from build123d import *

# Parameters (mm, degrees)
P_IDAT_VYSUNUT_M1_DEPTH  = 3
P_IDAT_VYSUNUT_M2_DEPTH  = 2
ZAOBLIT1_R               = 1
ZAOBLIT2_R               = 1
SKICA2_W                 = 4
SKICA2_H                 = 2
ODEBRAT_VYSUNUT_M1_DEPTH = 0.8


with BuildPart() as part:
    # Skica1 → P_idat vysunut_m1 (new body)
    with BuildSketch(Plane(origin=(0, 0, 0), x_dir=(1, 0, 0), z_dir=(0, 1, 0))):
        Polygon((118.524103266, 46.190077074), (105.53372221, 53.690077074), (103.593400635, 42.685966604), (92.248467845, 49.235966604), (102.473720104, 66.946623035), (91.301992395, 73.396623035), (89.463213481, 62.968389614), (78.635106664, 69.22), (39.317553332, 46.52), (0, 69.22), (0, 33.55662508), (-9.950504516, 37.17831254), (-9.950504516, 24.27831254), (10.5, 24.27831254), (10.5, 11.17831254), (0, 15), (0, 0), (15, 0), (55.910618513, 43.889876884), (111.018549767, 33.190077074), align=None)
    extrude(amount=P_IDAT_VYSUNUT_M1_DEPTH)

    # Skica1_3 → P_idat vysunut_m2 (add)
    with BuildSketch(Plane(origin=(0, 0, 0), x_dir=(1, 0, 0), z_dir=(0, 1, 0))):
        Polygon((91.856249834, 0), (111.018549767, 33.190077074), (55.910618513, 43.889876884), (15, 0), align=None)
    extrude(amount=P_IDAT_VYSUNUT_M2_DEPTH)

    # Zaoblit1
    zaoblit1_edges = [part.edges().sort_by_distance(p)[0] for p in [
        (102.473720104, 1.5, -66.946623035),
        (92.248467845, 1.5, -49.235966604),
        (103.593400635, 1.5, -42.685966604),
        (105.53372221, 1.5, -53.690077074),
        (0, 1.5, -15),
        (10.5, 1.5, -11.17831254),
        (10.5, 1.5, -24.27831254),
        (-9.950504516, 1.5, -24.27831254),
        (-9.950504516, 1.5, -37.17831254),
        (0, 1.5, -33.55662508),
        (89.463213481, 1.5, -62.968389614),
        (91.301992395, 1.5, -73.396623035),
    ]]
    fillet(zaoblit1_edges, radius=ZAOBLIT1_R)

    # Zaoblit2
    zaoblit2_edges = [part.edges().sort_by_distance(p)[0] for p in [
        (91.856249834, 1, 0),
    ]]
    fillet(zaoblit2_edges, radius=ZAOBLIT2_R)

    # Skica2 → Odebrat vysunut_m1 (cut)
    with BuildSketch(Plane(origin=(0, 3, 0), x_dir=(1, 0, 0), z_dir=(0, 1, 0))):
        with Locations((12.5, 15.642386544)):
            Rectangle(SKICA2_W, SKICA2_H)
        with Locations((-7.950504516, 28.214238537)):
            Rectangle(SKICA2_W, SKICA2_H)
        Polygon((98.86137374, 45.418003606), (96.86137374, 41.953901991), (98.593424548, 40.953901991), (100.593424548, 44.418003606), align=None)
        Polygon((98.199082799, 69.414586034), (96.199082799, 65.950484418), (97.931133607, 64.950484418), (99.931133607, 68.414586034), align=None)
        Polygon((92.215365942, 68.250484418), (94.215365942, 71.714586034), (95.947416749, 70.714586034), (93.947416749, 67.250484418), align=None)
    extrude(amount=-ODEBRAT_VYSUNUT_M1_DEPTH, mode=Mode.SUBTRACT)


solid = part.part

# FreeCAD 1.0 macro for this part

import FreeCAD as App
import Part
import Sketcher

V = App.Vector
Q = App.Units.Quantity


def edges_at(feature, points):
    """Names of the edges that pass closest to the given points."""
    edges = feature.Shape.Edges
    near = lambda p: min(range(len(edges)), key=lambda i: edges[i].distToShape(Part.Vertex(*p))[0])
    return sorted({f"Edge{near(p) + 1}" for p in points})

doc = App.newDocument("Part")
body = doc.addObject("PartDesign::Body", "Body")

# Sketch on XZ plane
sketch1 = doc.addObject("Sketcher::SketchObject", "Sketch")
body.addObject(sketch1)
sketch1.AttachmentSupport = (doc.XZ_Plane, [""])
sketch1.MapMode = "FlatFace"
sketch1.addGeometry(Part.LineSegment(V(119, -46, 0), V(106, -54, 0)), False)
sketch1.addGeometry(Part.LineSegment(V(106, -54, 0), V(104, -43, 0)), False)
sketch1.addGeometry(Part.LineSegment(V(104, -43, 0), V(92, -49, 0)), False)
sketch1.addGeometry(Part.LineSegment(V(92, -49, 0), V(102, -67, 0)), False)
sketch1.addGeometry(Part.LineSegment(V(102, -67, 0), V(91, -73, 0)), False)
sketch1.addGeometry(Part.LineSegment(V(91, -73, 0), V(89, -63, 0)), False)
sketch1.addGeometry(Part.LineSegment(V(89, -63, 0), V(79, -69, 0)), False)
sketch1.addGeometry(Part.LineSegment(V(79, -69, 0), V(39, -47, 0)), False)
sketch1.addGeometry(Part.LineSegment(V(39, -47, 0), V(0, -69, 0)), False)
sketch1.addGeometry(Part.LineSegment(V(0, -69, 0), V(0, -34, 0)), False)
sketch1.addGeometry(Part.LineSegment(V(0, -34, 0), V(-10, -37, 0)), False)
sketch1.addGeometry(Part.LineSegment(V(-10, -37, 0), V(-10, -24, 0)), False)
sketch1.addGeometry(Part.LineSegment(V(-10, -24, 0), V(10, -24, 0)), False)
sketch1.addGeometry(Part.LineSegment(V(10, -24, 0), V(10, -11, 0)), False)
sketch1.addGeometry(Part.LineSegment(V(10, -11, 0), V(0, -15, 0)), False)
sketch1.addGeometry(Part.LineSegment(V(0, -15, 0), V(0, 0, 0)), False)
sketch1.addGeometry(Part.LineSegment(V(0, 0, 0), V(15, 0, 0)), False)
sketch1.addGeometry(Part.LineSegment(V(15, 0, 0), V(56, -44, 0)), False)
sketch1.addGeometry(Part.LineSegment(V(56, -44, 0), V(111, -33, 0)), False)
sketch1.addGeometry(Part.LineSegment(V(111, -33, 0), V(119, -46, 0)), False)
sketch1.addConstraint(Sketcher.Constraint("Coincident", 0, 2, 1, 1))
sketch1.addConstraint(Sketcher.Constraint("Coincident", 1, 2, 2, 1))
sketch1.addConstraint(Sketcher.Constraint("Coincident", 2, 2, 3, 1))
sketch1.addConstraint(Sketcher.Constraint("Coincident", 3, 2, 4, 1))
sketch1.addConstraint(Sketcher.Constraint("Coincident", 4, 2, 5, 1))
sketch1.addConstraint(Sketcher.Constraint("Coincident", 5, 2, 6, 1))
sketch1.addConstraint(Sketcher.Constraint("Coincident", 6, 2, 7, 1))
sketch1.addConstraint(Sketcher.Constraint("Coincident", 7, 2, 8, 1))
sketch1.addConstraint(Sketcher.Constraint("Coincident", 8, 2, 9, 1))
sketch1.addConstraint(Sketcher.Constraint("Coincident", 9, 2, 10, 1))
sketch1.addConstraint(Sketcher.Constraint("Coincident", 10, 2, 11, 1))
sketch1.addConstraint(Sketcher.Constraint("Coincident", 11, 2, 12, 1))
sketch1.addConstraint(Sketcher.Constraint("Coincident", 12, 2, 13, 1))
sketch1.addConstraint(Sketcher.Constraint("Coincident", 13, 2, 14, 1))
sketch1.addConstraint(Sketcher.Constraint("Coincident", 14, 2, 15, 1))
sketch1.addConstraint(Sketcher.Constraint("Coincident", 15, 2, 16, 1))
sketch1.addConstraint(Sketcher.Constraint("Coincident", 16, 2, 17, 1))
sketch1.addConstraint(Sketcher.Constraint("Coincident", 17, 2, 18, 1))
sketch1.addConstraint(Sketcher.Constraint("Coincident", 18, 2, 19, 1))
sketch1.addConstraint(Sketcher.Constraint("Coincident", 19, 2, 0, 1))
sketch1.addConstraint(Sketcher.Constraint("Vertical", 9))
sketch1.addConstraint(Sketcher.Constraint("Vertical", 11))
sketch1.addConstraint(Sketcher.Constraint("Horizontal", 12))
sketch1.addConstraint(Sketcher.Constraint("Vertical", 13))
sketch1.addConstraint(Sketcher.Constraint("Vertical", 15))
sketch1.addConstraint(Sketcher.Constraint("Horizontal", 16))
sketch1.addConstraint(Sketcher.Constraint("Coincident", 15, 2, -1, 1))
sketch1.addConstraint(Sketcher.Constraint("PointOnObject", 8, 2, -2))
sketch1.addConstraint(Sketcher.Constraint("Parallel", 0, 2))
sketch1.addConstraint(Sketcher.Constraint("Perpendicular", 2, 3))
sketch1.addConstraint(Sketcher.Constraint("Perpendicular", 3, 4))
sketch1.addConstraint(Sketcher.Constraint("Parallel", 1, 5))
sketch1.addConstraint(Sketcher.Constraint("Parallel", 4, 6))
sketch1.addConstraint(Sketcher.Constraint("Parallel", 6, 8))
sketch1.addConstraint(Sketcher.Constraint("Parallel", 10, 14))
sketch1.addConstraint(Sketcher.Constraint("Perpendicular", 8, 19))
sketch1.addConstraint(Sketcher.Constraint("Horizontal", 6, 2, 8, 2))
sketch1.addConstraint(Sketcher.Constraint("Equal", 16, 15))
sketch1.addConstraint(Sketcher.Constraint("Equal", 7, 8))
sketch1.addConstraint(Sketcher.Constraint("Equal", 5, 10))
sketch1.addConstraint(Sketcher.Constraint("Equal", 1, 14))
sketch1.addConstraint(Sketcher.Constraint("DistanceX", 16, 1, 16, 2, Q("15 mm")))
sketch1.addConstraint(Sketcher.Constraint("Angle", 0, Q("-150 deg")))
sketch1.addConstraint(Sketcher.Constraint("Angle", 1, Q("100 deg")))
sketch1.addConstraint(Sketcher.Constraint("Angle", 10, Q("-160 deg")))
sketch1.addConstraint(Sketcher.Constraint("Distance", 0, Q("15 mm")))
sketch1.addConstraint(Sketcher.Constraint("Distance", 17, Q("60 mm")))
sketch1.addConstraint(Sketcher.Constraint("DistanceY", 11, 1, 11, 2, Q("12.9 mm")))
sketch1.addConstraint(Sketcher.Constraint("DistanceY", 13, 1, 13, 2, Q("13.1 mm")))
sketch1.addConstraint(Sketcher.Constraint("DistanceY", 19, 2, 18, 2, Q("13 mm")))
sketch1.addConstraint(Sketcher.Constraint("Distance", 2, Q("13.1 mm")))
sketch1.addConstraint(Sketcher.Constraint("Distance", 4, Q("12.9 mm")))
sketch1.addConstraint(Sketcher.Constraint("Distance", 7, Q("45.4 mm")))
sketch1.addConstraint(Sketcher.Constraint("DistanceX", -1, 1, 12, 2, Q("10.5 mm")))
sketch1.addConstraint(Sketcher.Constraint("DistanceY", 6, 2, -1, 1, Q("69.22 mm")))
sketch1.addConstraint(Sketcher.Constraint("DistanceX", -1, 1, 1, 2, Q("103.593401 mm")))
sketch1.addConstraint(Sketcher.Constraint("Distance", 6, Q("12.503221 mm")))
sketch1.addConstraint(Sketcher.Constraint("DistanceX", 12, 1, 12, 2, Q("20.450505 mm")))
sketch1.addConstraint(Sketcher.Constraint("DistanceX", -1, 1, 17, 2, Q("55.910619 mm")))
pad1 = doc.addObject("PartDesign::Pad", "Pad")
body.addObject(pad1)
pad1.Profile = sketch1
pad1.Length = 3
pad1.Reversed = True

# Sketch on XZ plane
sketch2 = doc.addObject("Sketcher::SketchObject", "Sketch001")
body.addObject(sketch2)
sketch2.AttachmentSupport = (doc.XZ_Plane, [""])
sketch2.MapMode = "FlatFace"
sketch2.addGeometry(Part.LineSegment(V(92, 0, 0), V(111, -33, 0)), False)
sketch2.addGeometry(Part.LineSegment(V(111, -33, 0), V(56, -44, 0)), False)
sketch2.addGeometry(Part.LineSegment(V(56, -44, 0), V(15, 0, 0)), False)
sketch2.addGeometry(Part.LineSegment(V(15, 0, 0), V(92, 0, 0)), False)
sketch2.addConstraint(Sketcher.Constraint("Coincident", 0, 2, 1, 1))
sketch2.addConstraint(Sketcher.Constraint("Coincident", 1, 2, 2, 1))
sketch2.addConstraint(Sketcher.Constraint("Coincident", 2, 2, 3, 1))
sketch2.addConstraint(Sketcher.Constraint("Coincident", 3, 2, 0, 1))
sketch2.addConstraint(Sketcher.Constraint("Horizontal", 3))
sketch2.addConstraint(Sketcher.Constraint("PointOnObject", 2, 2, -1))
sketch2.addConstraint(Sketcher.Constraint("Angle", 0, Q("-60 deg")))
sketch2.addConstraint(Sketcher.Constraint("Distance", 2, Q("60 mm")))
sketch2.addConstraint(Sketcher.Constraint("DistanceX", -1, 1, 2, 2, Q("15 mm")))
sketch2.addConstraint(Sketcher.Constraint("Distance", 0, Q("38.3246 mm")))
sketch2.addConstraint(Sketcher.Constraint("DistanceX", 3, 1, 3, 2, Q("76.85625 mm")))
sketch2.addConstraint(Sketcher.Constraint("DistanceY", 1, 2, 0, 2, Q("10.6998 mm")))
pad2 = doc.addObject("PartDesign::Pad", "Pad001")
body.addObject(pad2)
pad2.Profile = sketch2
pad2.Length = 2
pad2.Reversed = True
doc.recompute()

fillet = doc.addObject("PartDesign::Fillet", "Fillet")
body.addObject(fillet)
fillet.Base = (pad2, edges_at(pad2, [
    (102.474, 1.5, -66.947),
    (92.248, 1.5, -49.236),
    (103.593, 1.5, -42.686),
    (105.534, 1.5, -53.69),
    (0, 1.5, -15),
    (10.5, 1.5, -11.178),
    (10.5, 1.5, -24.278),
    (-9.951, 1.5, -24.278),
    (-9.951, 1.5, -37.178),
    (0, 1.5, -33.557),
    (89.463, 1.5, -62.968),
    (91.302, 1.5, -73.397),
]))
fillet.Radius = 1
doc.recompute()

fillet2 = doc.addObject("PartDesign::Fillet", "Fillet001")
body.addObject(fillet2)
fillet2.Base = (fillet, edges_at(fillet, [(91.856, 1, 0)]))
fillet2.Radius = 1

# Sketch on XZ plane
sketch3 = doc.addObject("Sketcher::SketchObject", "Sketch002")
body.addObject(sketch3)
sketch3.AttachmentSupport = (doc.XZ_Plane, [""])
sketch3.MapMode = "FlatFace"
sketch3.AttachmentOffset = App.Placement(V(0, 0, -3), App.Rotation())
sketch3.addGeometry(Part.LineSegment(V(10.5, -16.6, 0), V(10.5, -14.6, 0)), False)
sketch3.addGeometry(Part.LineSegment(V(10.5, -14.6, 0), V(14.5, -14.6, 0)), False)
sketch3.addGeometry(Part.LineSegment(V(14.5, -14.6, 0), V(14.5, -16.6, 0)), False)
sketch3.addGeometry(Part.LineSegment(V(14.5, -16.6, 0), V(10.5, -16.6, 0)), False)
sketch3.addGeometry(Part.LineSegment(V(-10, -29.2, 0), V(-10, -27.2, 0)), False)
sketch3.addGeometry(Part.LineSegment(V(-10, -27.2, 0), V(-6, -27.2, 0)), False)
sketch3.addGeometry(Part.LineSegment(V(-6, -27.2, 0), V(-6, -29.2, 0)), False)
sketch3.addGeometry(Part.LineSegment(V(-6, -29.2, 0), V(-10, -29.2, 0)), False)
sketch3.addGeometry(Part.LineSegment(V(98.9, -45.4, 0), V(96.9, -42, 0)), False)
sketch3.addGeometry(Part.LineSegment(V(96.9, -42, 0), V(98.6, -41, 0)), False)
sketch3.addGeometry(Part.LineSegment(V(98.6, -41, 0), V(100.6, -44.4, 0)), False)
sketch3.addGeometry(Part.LineSegment(V(100.6, -44.4, 0), V(98.9, -45.4, 0)), False)
sketch3.addGeometry(Part.LineSegment(V(98.2, -69.4, 0), V(96.2, -66, 0)), False)
sketch3.addGeometry(Part.LineSegment(V(96.2, -66, 0), V(97.9, -65, 0)), False)
sketch3.addGeometry(Part.LineSegment(V(97.9, -65, 0), V(99.9, -68.4, 0)), False)
sketch3.addGeometry(Part.LineSegment(V(99.9, -68.4, 0), V(98.2, -69.4, 0)), False)
sketch3.addGeometry(Part.LineSegment(V(94.2, -71.7, 0), V(92.2, -68.3, 0)), False)
sketch3.addGeometry(Part.LineSegment(V(92.2, -68.3, 0), V(93.9, -67.3, 0)), False)
sketch3.addGeometry(Part.LineSegment(V(93.9, -67.3, 0), V(95.9, -70.7, 0)), False)
sketch3.addGeometry(Part.LineSegment(V(95.9, -70.7, 0), V(94.2, -71.7, 0)), False)
sketch3.addConstraint(Sketcher.Constraint("Coincident", 0, 2, 1, 1))
sketch3.addConstraint(Sketcher.Constraint("Coincident", 1, 2, 2, 1))
sketch3.addConstraint(Sketcher.Constraint("Coincident", 2, 2, 3, 1))
sketch3.addConstraint(Sketcher.Constraint("Coincident", 3, 2, 0, 1))
sketch3.addConstraint(Sketcher.Constraint("Coincident", 4, 2, 5, 1))
sketch3.addConstraint(Sketcher.Constraint("Coincident", 5, 2, 6, 1))
sketch3.addConstraint(Sketcher.Constraint("Coincident", 6, 2, 7, 1))
sketch3.addConstraint(Sketcher.Constraint("Coincident", 7, 2, 4, 1))
sketch3.addConstraint(Sketcher.Constraint("Coincident", 8, 2, 9, 1))
sketch3.addConstraint(Sketcher.Constraint("Coincident", 9, 2, 10, 1))
sketch3.addConstraint(Sketcher.Constraint("Coincident", 10, 2, 11, 1))
sketch3.addConstraint(Sketcher.Constraint("Coincident", 11, 2, 8, 1))
sketch3.addConstraint(Sketcher.Constraint("Coincident", 12, 2, 13, 1))
sketch3.addConstraint(Sketcher.Constraint("Coincident", 13, 2, 14, 1))
sketch3.addConstraint(Sketcher.Constraint("Coincident", 14, 2, 15, 1))
sketch3.addConstraint(Sketcher.Constraint("Coincident", 15, 2, 12, 1))
sketch3.addConstraint(Sketcher.Constraint("Coincident", 16, 2, 17, 1))
sketch3.addConstraint(Sketcher.Constraint("Coincident", 17, 2, 18, 1))
sketch3.addConstraint(Sketcher.Constraint("Coincident", 18, 2, 19, 1))
sketch3.addConstraint(Sketcher.Constraint("Coincident", 19, 2, 16, 1))
sketch3.addConstraint(Sketcher.Constraint("Vertical", 0))
sketch3.addConstraint(Sketcher.Constraint("Horizontal", 1))
sketch3.addConstraint(Sketcher.Constraint("Vertical", 2))
sketch3.addConstraint(Sketcher.Constraint("Horizontal", 3))
sketch3.addConstraint(Sketcher.Constraint("Vertical", 4))
sketch3.addConstraint(Sketcher.Constraint("Horizontal", 5))
sketch3.addConstraint(Sketcher.Constraint("Vertical", 6))
sketch3.addConstraint(Sketcher.Constraint("Horizontal", 7))
sketch3.addConstraint(Sketcher.Constraint("Perpendicular", 8, 9))
sketch3.addConstraint(Sketcher.Constraint("Perpendicular", 9, 10))
sketch3.addConstraint(Sketcher.Constraint("Perpendicular", 10, 11))
sketch3.addConstraint(Sketcher.Constraint("Perpendicular", 11, 12))
sketch3.addConstraint(Sketcher.Constraint("Perpendicular", 12, 13))
sketch3.addConstraint(Sketcher.Constraint("Perpendicular", 13, 14))
sketch3.addConstraint(Sketcher.Constraint("Perpendicular", 14, 15))
sketch3.addConstraint(Sketcher.Constraint("Perpendicular", 15, 16))
sketch3.addConstraint(Sketcher.Constraint("Perpendicular", 16, 17))
sketch3.addConstraint(Sketcher.Constraint("Perpendicular", 17, 18))
sketch3.addConstraint(Sketcher.Constraint("Perpendicular", 18, 19))
sketch3.addConstraint(Sketcher.Constraint("Equal", 3, 5))
sketch3.addConstraint(Sketcher.Constraint("Equal", 2, 4))
sketch3.addConstraint(Sketcher.Constraint("Equal", 10, 12))
sketch3.addConstraint(Sketcher.Constraint("Equal", 11, 13))
sketch3.addConstraint(Sketcher.Constraint("Equal", 14, 16))
sketch3.addConstraint(Sketcher.Constraint("Equal", 15, 17))
sketch3.addConstraint(Sketcher.Constraint("DistanceX", 1, 1, 1, 2, Q("4 mm")))
sketch3.addConstraint(Sketcher.Constraint("DistanceY", 0, 1, 0, 2, Q("2 mm")))
sketch3.addConstraint(Sketcher.Constraint("Angle", 8, Q("120 deg")))
sketch3.addConstraint(Sketcher.Constraint("Distance", 8, Q("4 mm")))
sketch3.addConstraint(Sketcher.Constraint("Distance", 9, Q("2 mm")))
sketch3.addConstraint(Sketcher.Constraint("DistanceX", -1, 1, 0, 2, Q("10.5 mm")))
sketch3.addConstraint(Sketcher.Constraint("DistanceY", 16, 2, 12, 2, Q("2.3 mm")))
sketch3.addConstraint(Sketcher.Constraint("DistanceY", 8, 2, -1, 1, Q("41.953902 mm")))
sketch3.addConstraint(Sketcher.Constraint("DistanceY", 4, 2, -1, 1, Q("27.214239 mm")))
sketch3.addConstraint(Sketcher.Constraint("DistanceY", 4, 2, 3, 2, Q("10.571852 mm")))
sketch3.addConstraint(Sketcher.Constraint("DistanceX", 6, 2, 8, 2, Q("102.811878 mm")))
sketch3.addConstraint(Sketcher.Constraint("DistanceX", 12, 2, 11, 2, Q("2.662291 mm")))
sketch3.addConstraint(Sketcher.Constraint("DistanceY", 12, 2, 11, 2, Q("20.532481 mm")))
sketch3.addConstraint(Sketcher.Constraint("DistanceX", 4, 2, -1, 1, Q("9.950505 mm")))
sketch3.addConstraint(Sketcher.Constraint("DistanceX", -1, 1, 16, 2, Q("92.215366 mm")))
pocket1 = doc.addObject("PartDesign::Pocket", "Pocket")
body.addObject(pocket1)
pocket1.Profile = sketch3
pocket1.Length = 0.8
pocket1.Reversed = True

doc.recompute()
